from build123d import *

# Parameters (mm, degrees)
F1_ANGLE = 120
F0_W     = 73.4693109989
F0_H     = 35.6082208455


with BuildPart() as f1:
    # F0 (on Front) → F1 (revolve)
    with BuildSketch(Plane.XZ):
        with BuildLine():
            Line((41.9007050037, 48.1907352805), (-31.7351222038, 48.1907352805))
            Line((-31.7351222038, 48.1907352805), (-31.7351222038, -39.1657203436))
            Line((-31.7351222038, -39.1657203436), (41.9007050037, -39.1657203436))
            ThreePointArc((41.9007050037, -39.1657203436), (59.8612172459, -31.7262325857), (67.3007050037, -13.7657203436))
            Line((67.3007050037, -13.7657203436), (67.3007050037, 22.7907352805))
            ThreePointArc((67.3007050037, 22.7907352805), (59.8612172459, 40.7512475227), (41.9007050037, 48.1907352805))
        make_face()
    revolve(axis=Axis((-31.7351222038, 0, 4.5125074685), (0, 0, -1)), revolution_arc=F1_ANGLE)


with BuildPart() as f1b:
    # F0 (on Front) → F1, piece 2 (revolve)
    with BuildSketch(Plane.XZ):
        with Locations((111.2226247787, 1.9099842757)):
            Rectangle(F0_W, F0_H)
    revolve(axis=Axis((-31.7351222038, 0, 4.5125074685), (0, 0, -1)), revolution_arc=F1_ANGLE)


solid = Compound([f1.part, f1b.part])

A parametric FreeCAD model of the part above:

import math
import FreeCAD as App
import Part
import Sketcher
Q = App.Units.Quantity

doc = App.newDocument("Part")
body = doc.addObject("PartDesign::Body", "Body")

sketch1 = body.newObject("Sketcher::SketchObject", "Sketch")
sketch1.AttachmentSupport = (doc.getObject("XZ_Plane"), [""])
sketch1.MapMode = "FlatFace"
sketch1.addGeometry([
    Part.LineSegment(App.Vector(42, 48, 0), App.Vector(-32, 48, 0)),
    Part.LineSegment(App.Vector(-32, 48, 0), App.Vector(-32, -39, 0)),
    Part.LineSegment(App.Vector(-32, -39, 0), App.Vector(42, -39, 0)),
    Part.ArcOfCircle(Part.Circle(App.Vector(42, -14, 0), App.Vector(0, 0, 1), 25), math.radians(-90), math.radians(0)),
    Part.LineSegment(App.Vector(67, -14, 0), App.Vector(67, 23, 0)),
    Part.ArcOfCircle(Part.Circle(App.Vector(42, 23, 0), App.Vector(0, 0, 1), 25), math.radians(0), math.radians(90)),
], False)
sketch1.addGeometry(Part.LineSegment(App.Vector(-32, 48, 0), App.Vector(-32, -39, 0)), True)
sketch1.addConstraint([
    Sketcher.Constraint("Coincident", 0, 2, 1, 1),
    Sketcher.Constraint("Coincident", 1, 2, 2, 1),
    Sketcher.Constraint("Tangent", 2, 2, 3, 1),
    Sketcher.Constraint("Tangent", 3, 2, 4, 1),
    Sketcher.Constraint("Tangent", 4, 2, 5, 1),
    Sketcher.Constraint("Tangent", 5, 2, 0, 1),
    Sketcher.Constraint("Horizontal", 0),
    Sketcher.Constraint("Vertical", 1),
    Sketcher.Constraint("Horizontal", 2),
    Sketcher.Constraint("Vertical", 4),
    Sketcher.Constraint("Vertical", 6),
    Sketcher.Constraint("Coincident", 6, 1, 0, 2),
    Sketcher.Constraint("Equal", 3, 5),
    Sketcher.Constraint("Horizontal", 2, 2, 6, 2),
    Sketcher.Constraint("Radius", 3, Q("1 in")),
    Sketcher.Constraint("DistanceX", 0, 2, 0, 1, Q("73.635827 mm")),
    Sketcher.Constraint("DistanceY", 1, 2, 1, 1, Q("87.356456 mm")),
    Sketcher.Constraint("DistanceY", 3, 3, -1, 1, Q("13.76572 mm")),
    Sketcher.Constraint("DistanceX", -1, 1, 3, 3, Q("41.900705 mm")),
])
revolution = body.newObject("PartDesign::Revolution", "Revolution")
revolution.Profile = sketch1
revolution.ReferenceAxis = (sketch1, ["Axis0"])
revolution.Angle = 120
body2 = doc.addObject("PartDesign::Body", "Body001")

sketch2 = body2.newObject("Sketcher::SketchObject", "Sketch001")
sketch2.AttachmentSupport = (doc.getObject("XZ_Plane001"), [""])
sketch2.MapMode = "FlatFace"
sketch2.addGeometry([
    Part.LineSegment(App.Vector(74, 20, 0), App.Vector(74, -16, 0)),
    Part.LineSegment(App.Vector(74, -16, 0), App.Vector(148, -16, 0)),
    Part.LineSegment(App.Vector(148, -16, 0), App.Vector(148, 20, 0)),
    Part.LineSegment(App.Vector(148, 20, 0), App.Vector(74, 20, 0)),
], False)
sketch2.addGeometry(Part.LineSegment(App.Vector(-32, 20, 0), App.Vector(-32, -16, 0)), True)
sketch2.addConstraint([
    Sketcher.Constraint("Coincident", 0, 2, 1, 1),
    Sketcher.Constraint("Coincident", 1, 2, 2, 1),
    Sketcher.Constraint("Coincident", 2, 2, 3, 1),
    Sketcher.Constraint("Coincident", 3, 2, 0, 1),
    Sketcher.Constraint("Vertical", 0),
    Sketcher.Constraint("Horizontal", 1),
    Sketcher.Constraint("Vertical", 2),
    Sketcher.Constraint("Horizontal", 3),
    Sketcher.Constraint("Vertical", 4),
    Sketcher.Constraint("Horizontal", 3, 2, 4, 1),
    Sketcher.Constraint("Horizontal", 1, 2, 4, 2),
    Sketcher.Constraint("DistanceX", 1, 1, 1, 2, Q("73.469311 mm")),
    Sketcher.Constraint("DistanceY", 0, 2, 0, 1, Q("35.608221 mm")),
    Sketcher.Constraint("DistanceX", -1, 1, 0, 2, Q("74.487969 mm")),
    Sketcher.Constraint("DistanceX", 4, 1, 3, 2, Q("106.223091 mm")),
    Sketcher.Constraint("DistanceY", 0, 2, -1, 1, Q("15.894126 mm")),
])
revolution2 = body2.newObject("PartDesign::Revolution", "Revolution001")
revolution2.Profile = sketch2
revolution2.ReferenceAxis = (sketch2, ["Axis0"])
revolution2.Angle = 120

doc.recompute()
